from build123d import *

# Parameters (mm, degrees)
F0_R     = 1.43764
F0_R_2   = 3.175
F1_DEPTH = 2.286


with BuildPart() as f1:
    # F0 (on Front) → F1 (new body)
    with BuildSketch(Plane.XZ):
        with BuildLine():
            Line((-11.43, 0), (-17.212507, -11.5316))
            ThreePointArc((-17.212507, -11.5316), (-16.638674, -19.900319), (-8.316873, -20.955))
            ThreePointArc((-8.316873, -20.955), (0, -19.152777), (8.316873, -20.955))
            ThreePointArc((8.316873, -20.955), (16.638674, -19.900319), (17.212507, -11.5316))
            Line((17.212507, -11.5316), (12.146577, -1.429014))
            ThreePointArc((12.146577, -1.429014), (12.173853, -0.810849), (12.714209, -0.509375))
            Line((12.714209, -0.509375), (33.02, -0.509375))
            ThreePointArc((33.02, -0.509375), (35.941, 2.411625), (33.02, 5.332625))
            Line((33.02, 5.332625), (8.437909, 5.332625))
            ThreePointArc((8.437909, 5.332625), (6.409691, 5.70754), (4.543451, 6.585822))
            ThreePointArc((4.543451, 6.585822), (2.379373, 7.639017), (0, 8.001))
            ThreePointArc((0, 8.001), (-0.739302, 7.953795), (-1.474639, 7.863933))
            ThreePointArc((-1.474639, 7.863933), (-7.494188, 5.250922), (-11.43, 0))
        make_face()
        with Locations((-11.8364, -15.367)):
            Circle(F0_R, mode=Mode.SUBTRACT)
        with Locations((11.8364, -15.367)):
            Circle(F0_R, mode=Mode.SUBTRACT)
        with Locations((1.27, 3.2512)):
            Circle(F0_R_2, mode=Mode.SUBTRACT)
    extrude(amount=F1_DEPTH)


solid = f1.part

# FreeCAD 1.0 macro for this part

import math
import FreeCAD as App
import Part
import Sketcher
Q = App.Units.Quantity

doc = App.newDocument("Part")
body = doc.addObject("PartDesign::Body", "Body")

sketch1 = body.newObject("Sketcher::SketchObject", "Sketch")
sketch1.AttachmentSupport = (doc.getObject("XZ_Plane"), [""])
sketch1.MapMode = "FlatFace"
sketch1.addGeometry([
    Part.LineSegment(App.Vector(-11.4, 0, 0), App.Vector(-17.2, -11.5, 0)),
    Part.ArcOfCircle(Part.Circle(App.Vector(-11.8, -15.4, 0), App.Vector(0, 0, 1), 6.6), math.radians(144), math.radians(302)),
    Part.ArcOfCircle(Part.Circle(App.Vector(0, -39.2, 0), App.Vector(0, 0, 1), 20.1), math.radians(66), math.radians(114)),
    Part.ArcOfCircle(Part.Circle(App.Vector(11.8, -15.4, 0), App.Vector(0, 0, 1), 6.6), math.radians(-122), math.radians(36)),
    Part.LineSegment(App.Vector(17.2, -11.5, 0), App.Vector(12.1, -1.4, 0)),
    Part.ArcOfCircle(Part.Circle(App.Vector(12.7, -1.1, 0), App.Vector(0, 0, 1), 0.6), math.radians(90), math.radians(207)),
    Part.LineSegment(App.Vector(12.7, -0.5, 0), App.Vector(33, -0.5, 0)),
    Part.ArcOfCircle(Part.Circle(App.Vector(33, 2.4, 0), App.Vector(0, 0, 1), 2.9), math.radians(-90), math.radians(90)),
    Part.LineSegment(App.Vector(33, 5.3, 0), App.Vector(8.4, 5.3, 0)),
    Part.ArcOfCircle(Part.Circle(App.Vector(8.9, 13.4, 0), App.Vector(0, 0, 1), 8), math.radians(-123), math.radians(-93)),
    Part.ArcOfCircle(Part.Circle(App.Vector(0, 0, 0), App.Vector(0, 0, 1), 8), math.radians(55), math.radians(90)),
    Part.ArcOfCircle(Part.Circle(App.Vector(0.4, -4.8, 0), App.Vector(0, 0, 1), 12.8), math.radians(92), math.radians(98.62)),
    Part.ArcOfCircle(Part.Circle(App.Vector(0.4, -4.8, 0), App.Vector(0, 0, 1), 12.8), math.radians(99), math.radians(158)),
    Part.Circle(App.Vector(-11.8, -15.4, 0), App.Vector(0, 0, 1), 1.4),
    Part.Circle(App.Vector(11.8, -15.4, 0), App.Vector(0, 0, 1), 1.4),
    Part.Circle(App.Vector(1.3, 3.3, 0), App.Vector(0, 0, 1), 3.2),
], False)
sketch1.addConstraint([
    Sketcher.Constraint("Coincident", 0, 2, 1, 1),
    Sketcher.Constraint("Coincident", 1, 2, 2, 2),
    Sketcher.Constraint("Coincident", 2, 1, 3, 1),
    Sketcher.Constraint("Coincident", 3, 2, 4, 1),
    Sketcher.Constraint("Tangent", 4, 2, 5, 2),
    Sketcher.Constraint("Coincident", 5, 1, 6, 1),
    Sketcher.Constraint("Tangent", 6, 2, 7, 1),
    Sketcher.Constraint("Tangent", 7, 2, 8, 1),
    Sketcher.Constraint("Coincident", 8, 2, 9, 2),
    Sketcher.Constraint("Coincident", 9, 1, 10, 1),
    Sketcher.Constraint("Coincident", 10, 2, 11, 1),
    Sketcher.Constraint("Tangent", 11, 2, 12, 1),
    Sketcher.Constraint("Coincident", 12, 2, 0, 1),
    Sketcher.Constraint("Horizontal", 6),
    Sketcher.Constraint("Horizontal", 8),
    Sketcher.Constraint("Coincident", 10, 3, -1, 1),
    Sketcher.Constraint("Coincident", 13, 3, 1, 3),
    Sketcher.Constraint("Coincident", 14, 3, 3, 3),
    Sketcher.Constraint("Equal", 1, 3),
    Sketcher.Constraint("Equal", 13, 14),
    Sketcher.Constraint("Symmetric", 1, 3, 3, 3, -2),
    Sketcher.Constraint("PointOnObject", 2, 3, -2),
    Sketcher.Constraint("PointOnObject", 10, 2, -2),
    Sketcher.Constraint("PointOnObject", 12, 2, -1),
    Sketcher.Constraint("Horizontal", 0, 2, 3, 2),
    Sketcher.Constraint("Vertical", 11, 3, 12, 3),
    Sketcher.Constraint("Diameter", 15, Q("0.25 in")),
    Sketcher.Constraint("Radius", 1, Q("0.26 in")),
    Sketcher.Constraint("Radius", 2, Q("0.7910002 in")),
    Sketcher.Constraint("Radius", 5, Q("0.025 in")),
    Sketcher.Constraint("Radius", 7, Q("0.115 in")),
    Sketcher.Constraint("Radius", 10, Q("0.3150002 in")),
    Sketcher.Constraint("Diameter", 13, Q("0.1132 in")),
    Sketcher.Constraint("DistanceX", -1, 1, 7, 3, Q("1.3 in")),
    Sketcher.Constraint("DistanceX", -1, 1, 15, 3, Q("0.05 in")),
    Sketcher.Constraint("DistanceX", 12, 2, -1, 1, Q("0.45 in")),
    Sketcher.Constraint("DistanceY", 1, 2, 13, 3, Q("0.22 in")),
    Sketcher.Constraint("DistanceX", 1, 3, -1, 1, Q("0.466 in")),
    Sketcher.Constraint("DistanceY", 1, 3, -1, 1, Q("0.605 in")),
    Sketcher.Constraint("DistanceY", -1, 1, 15, 3, Q("0.128 in")),
    Sketcher.Constraint("DistanceY", 0, 2, -1, 1, Q("0.454 in")),
    Sketcher.Constraint("Radius", 9, 8.04527),
    Sketcher.Constraint("Radius", 11, 12.810095),
    Sketcher.Constraint("DistanceX", 6, 1, 6, 2, 20.305791),
    Sketcher.Constraint("DistanceX", 8, 2, 8, 1, 24.582091),
    Sketcher.Constraint("DistanceX", 8, 2, 5, 3, 4.276301),
    Sketcher.Constraint("DistanceY", -1, 1, 9, 3, 13.36606),
    Sketcher.Constraint("DistanceX", -1, 1, 9, 1, 4.543451),
    Sketcher.Constraint("DistanceX", 11, 2, -1, 1, 1.474639),
])
pad1 = body.newObject("PartDesign::Pad", "Pad")
pad1.Profile = sketch1
pad1.Length = Q("0.09 in")

doc.recompute()
